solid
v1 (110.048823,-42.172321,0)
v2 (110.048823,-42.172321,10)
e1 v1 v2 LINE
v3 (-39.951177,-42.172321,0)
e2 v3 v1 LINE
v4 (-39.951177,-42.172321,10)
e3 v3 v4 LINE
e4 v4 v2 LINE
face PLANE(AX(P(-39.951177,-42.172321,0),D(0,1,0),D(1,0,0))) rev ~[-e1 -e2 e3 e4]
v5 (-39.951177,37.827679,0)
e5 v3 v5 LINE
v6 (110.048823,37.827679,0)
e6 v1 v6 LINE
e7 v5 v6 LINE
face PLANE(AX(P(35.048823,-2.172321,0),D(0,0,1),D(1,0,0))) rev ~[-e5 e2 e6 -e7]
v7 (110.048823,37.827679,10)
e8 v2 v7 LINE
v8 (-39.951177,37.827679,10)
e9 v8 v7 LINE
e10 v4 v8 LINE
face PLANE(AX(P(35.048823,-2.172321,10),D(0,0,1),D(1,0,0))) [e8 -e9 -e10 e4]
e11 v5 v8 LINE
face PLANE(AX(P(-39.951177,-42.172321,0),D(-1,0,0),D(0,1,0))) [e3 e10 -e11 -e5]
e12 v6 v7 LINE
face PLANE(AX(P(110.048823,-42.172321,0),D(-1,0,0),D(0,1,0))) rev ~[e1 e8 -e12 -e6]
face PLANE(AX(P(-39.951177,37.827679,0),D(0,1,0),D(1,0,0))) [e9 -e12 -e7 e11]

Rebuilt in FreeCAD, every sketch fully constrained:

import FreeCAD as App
import Part
import Sketcher


def add_polygon(sketch, points):
    """Adds a closed chain of lines whose ends are joined by coincident constraints."""
    first, n = sketch.GeometryCount, len(points)
    for a, b in zip(points, points[1:] + points[:1]):
        sketch.addGeometry(Part.LineSegment(App.Vector(*a, 0), App.Vector(*b, 0)), False)
    for i in range(n):
        sketch.addConstraint(Sketcher.Constraint("Coincident", first + i, 2, first + (i + 1) % n, 1))

doc = App.newDocument("Part")
body = doc.addObject("PartDesign::Body", "Body")

# Sketch on XY plane
sketch1 = body.newObject("Sketcher::SketchObject", "Sketch")
sketch1.AttachmentSupport = (doc.getObject("XY_Plane"), [""])
sketch1.MapMode = "FlatFace"
add_polygon(sketch1, [(-39.951177, 37.827679), (-39.951177, -42.172321), (110.048823, -42.172321), (110.048823, 37.827679)])  # lines 0-3
sketch1.addConstraint([
    Sketcher.Constraint("Vertical", 0),
    Sketcher.Constraint("Horizontal", 1),
    Sketcher.Constraint("Vertical", 2),
    Sketcher.Constraint("Horizontal", 3),
    Sketcher.Constraint("DistanceX", 1, 1, 1, 2, 150.0),
    Sketcher.Constraint("DistanceY", 0, 2, 0, 1, 80.0),
    Sketcher.Constraint("DistanceY", 0, 2, -1, 1, 42.172321),
    Sketcher.Constraint("DistanceX", 0, 2, -1, 1, 39.951177),
])
pad1 = body.newObject("PartDesign::Pad", "Pad")
pad1.Profile = sketch1
pad1.Length = 10

doc.recompute()
